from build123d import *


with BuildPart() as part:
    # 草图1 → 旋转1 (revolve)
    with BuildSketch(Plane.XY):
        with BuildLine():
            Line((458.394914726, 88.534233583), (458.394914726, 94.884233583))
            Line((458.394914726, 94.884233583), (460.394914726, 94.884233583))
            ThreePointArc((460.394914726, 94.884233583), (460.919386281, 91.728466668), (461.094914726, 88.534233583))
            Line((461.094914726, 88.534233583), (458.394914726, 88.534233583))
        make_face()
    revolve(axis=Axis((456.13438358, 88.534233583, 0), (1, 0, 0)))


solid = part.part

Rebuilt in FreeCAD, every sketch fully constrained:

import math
import FreeCAD as App
import Part
import Sketcher

V = App.Vector
Q = App.Units.Quantity

doc = App.newDocument("Part")
params = doc.addObject("Spreadsheet::Sheet", "Params")
for row, (alias, value) in enumerate([
    ("sketch1_width", "2 mm"),
    ("sketch1_width2", "2.7 mm"),
    ("sketch1_height", "6.35 mm"),
    ("revolution_angle", "360 deg"),
], start=1):
    params.set(f"A{row}", alias)
    params.set(f"B{row}", "=" + value)
    params.setAlias(f"B{row}", alias)

body = doc.addObject("PartDesign::Body", "Body")

# Sketch on XY plane
sketch1 = body.newObject("Sketcher::SketchObject", "Sketch")
sketch1.AttachmentSupport = (doc.getObject("XY_Plane"), [""])
sketch1.MapMode = "FlatFace"
sketch1.addGeometry(Part.LineSegment(V(458.4, 94.9, 0), V(458.4, 88.5, 0)), False)
sketch1.addGeometry(Part.LineSegment(V(458.4, 88.5, 0), V(461.1, 88.5, 0)), False)
sketch1.addGeometry(Part.ArcOfCircle(Part.Circle(V(431.9, 88.5, 0), V(0, 0, 1), 29.2), math.radians(0), math.radians(12.58)), False)
sketch1.addGeometry(Part.LineSegment(V(460.4, 94.9, 0), V(458.4, 94.9, 0)), False)
sketch1.addGeometry(Part.LineSegment(V(431.9, 88.5, 0), V(461.1, 88.5, 0)), True)  # axis
sketch1.addConstraint(Sketcher.Constraint("Coincident", 0, 2, 1, 1))
sketch1.addConstraint(Sketcher.Constraint("Coincident", 1, 2, 2, 1))
sketch1.addConstraint(Sketcher.Constraint("Coincident", 2, 2, 3, 1))
sketch1.addConstraint(Sketcher.Constraint("Coincident", 3, 2, 0, 1))
sketch1.addConstraint(Sketcher.Constraint("Vertical", 0))
sketch1.addConstraint(Sketcher.Constraint("Horizontal", 1))
sketch1.addConstraint(Sketcher.Constraint("Horizontal", 3))
sketch1.addConstraint(Sketcher.Constraint("Horizontal", 4))
sketch1.addConstraint(Sketcher.Constraint("Coincident", 4, 1, 2, 3))
sketch1.addConstraint(Sketcher.Constraint("Coincident", 4, 2, 1, 2))
sketch1.addConstraint(Sketcher.Constraint("DistanceX", 3, 2, 3, 1, Q("2 mm")))
sketch1.addConstraint(Sketcher.Constraint("DistanceX", 1, 1, 1, 2, Q("2.7 mm")))
sketch1.addConstraint(Sketcher.Constraint("DistanceY", 0, 2, 0, 1, Q("6.35 mm")))
sketch1.addConstraint(Sketcher.Constraint("DistanceX", -1, 1, 2, 3, Q("431.943129 mm")))
sketch1.addConstraint(Sketcher.Constraint("DistanceY", -1, 1, 2, 3, Q("88.534234 mm")))
sketch1.setExpression("Constraints[10]", "Params.sketch1_width")
sketch1.setExpression("Constraints[11]", "Params.sketch1_width2")
sketch1.setExpression("Constraints[12]", "Params.sketch1_height")
revolution = body.newObject("PartDesign::Revolution", "Revolution")
revolution.Profile = sketch1
revolution.ReferenceAxis = (sketch1, ["Axis0"])
revolution.setExpression("Angle", "Params.revolution_angle")

doc.recompute()
